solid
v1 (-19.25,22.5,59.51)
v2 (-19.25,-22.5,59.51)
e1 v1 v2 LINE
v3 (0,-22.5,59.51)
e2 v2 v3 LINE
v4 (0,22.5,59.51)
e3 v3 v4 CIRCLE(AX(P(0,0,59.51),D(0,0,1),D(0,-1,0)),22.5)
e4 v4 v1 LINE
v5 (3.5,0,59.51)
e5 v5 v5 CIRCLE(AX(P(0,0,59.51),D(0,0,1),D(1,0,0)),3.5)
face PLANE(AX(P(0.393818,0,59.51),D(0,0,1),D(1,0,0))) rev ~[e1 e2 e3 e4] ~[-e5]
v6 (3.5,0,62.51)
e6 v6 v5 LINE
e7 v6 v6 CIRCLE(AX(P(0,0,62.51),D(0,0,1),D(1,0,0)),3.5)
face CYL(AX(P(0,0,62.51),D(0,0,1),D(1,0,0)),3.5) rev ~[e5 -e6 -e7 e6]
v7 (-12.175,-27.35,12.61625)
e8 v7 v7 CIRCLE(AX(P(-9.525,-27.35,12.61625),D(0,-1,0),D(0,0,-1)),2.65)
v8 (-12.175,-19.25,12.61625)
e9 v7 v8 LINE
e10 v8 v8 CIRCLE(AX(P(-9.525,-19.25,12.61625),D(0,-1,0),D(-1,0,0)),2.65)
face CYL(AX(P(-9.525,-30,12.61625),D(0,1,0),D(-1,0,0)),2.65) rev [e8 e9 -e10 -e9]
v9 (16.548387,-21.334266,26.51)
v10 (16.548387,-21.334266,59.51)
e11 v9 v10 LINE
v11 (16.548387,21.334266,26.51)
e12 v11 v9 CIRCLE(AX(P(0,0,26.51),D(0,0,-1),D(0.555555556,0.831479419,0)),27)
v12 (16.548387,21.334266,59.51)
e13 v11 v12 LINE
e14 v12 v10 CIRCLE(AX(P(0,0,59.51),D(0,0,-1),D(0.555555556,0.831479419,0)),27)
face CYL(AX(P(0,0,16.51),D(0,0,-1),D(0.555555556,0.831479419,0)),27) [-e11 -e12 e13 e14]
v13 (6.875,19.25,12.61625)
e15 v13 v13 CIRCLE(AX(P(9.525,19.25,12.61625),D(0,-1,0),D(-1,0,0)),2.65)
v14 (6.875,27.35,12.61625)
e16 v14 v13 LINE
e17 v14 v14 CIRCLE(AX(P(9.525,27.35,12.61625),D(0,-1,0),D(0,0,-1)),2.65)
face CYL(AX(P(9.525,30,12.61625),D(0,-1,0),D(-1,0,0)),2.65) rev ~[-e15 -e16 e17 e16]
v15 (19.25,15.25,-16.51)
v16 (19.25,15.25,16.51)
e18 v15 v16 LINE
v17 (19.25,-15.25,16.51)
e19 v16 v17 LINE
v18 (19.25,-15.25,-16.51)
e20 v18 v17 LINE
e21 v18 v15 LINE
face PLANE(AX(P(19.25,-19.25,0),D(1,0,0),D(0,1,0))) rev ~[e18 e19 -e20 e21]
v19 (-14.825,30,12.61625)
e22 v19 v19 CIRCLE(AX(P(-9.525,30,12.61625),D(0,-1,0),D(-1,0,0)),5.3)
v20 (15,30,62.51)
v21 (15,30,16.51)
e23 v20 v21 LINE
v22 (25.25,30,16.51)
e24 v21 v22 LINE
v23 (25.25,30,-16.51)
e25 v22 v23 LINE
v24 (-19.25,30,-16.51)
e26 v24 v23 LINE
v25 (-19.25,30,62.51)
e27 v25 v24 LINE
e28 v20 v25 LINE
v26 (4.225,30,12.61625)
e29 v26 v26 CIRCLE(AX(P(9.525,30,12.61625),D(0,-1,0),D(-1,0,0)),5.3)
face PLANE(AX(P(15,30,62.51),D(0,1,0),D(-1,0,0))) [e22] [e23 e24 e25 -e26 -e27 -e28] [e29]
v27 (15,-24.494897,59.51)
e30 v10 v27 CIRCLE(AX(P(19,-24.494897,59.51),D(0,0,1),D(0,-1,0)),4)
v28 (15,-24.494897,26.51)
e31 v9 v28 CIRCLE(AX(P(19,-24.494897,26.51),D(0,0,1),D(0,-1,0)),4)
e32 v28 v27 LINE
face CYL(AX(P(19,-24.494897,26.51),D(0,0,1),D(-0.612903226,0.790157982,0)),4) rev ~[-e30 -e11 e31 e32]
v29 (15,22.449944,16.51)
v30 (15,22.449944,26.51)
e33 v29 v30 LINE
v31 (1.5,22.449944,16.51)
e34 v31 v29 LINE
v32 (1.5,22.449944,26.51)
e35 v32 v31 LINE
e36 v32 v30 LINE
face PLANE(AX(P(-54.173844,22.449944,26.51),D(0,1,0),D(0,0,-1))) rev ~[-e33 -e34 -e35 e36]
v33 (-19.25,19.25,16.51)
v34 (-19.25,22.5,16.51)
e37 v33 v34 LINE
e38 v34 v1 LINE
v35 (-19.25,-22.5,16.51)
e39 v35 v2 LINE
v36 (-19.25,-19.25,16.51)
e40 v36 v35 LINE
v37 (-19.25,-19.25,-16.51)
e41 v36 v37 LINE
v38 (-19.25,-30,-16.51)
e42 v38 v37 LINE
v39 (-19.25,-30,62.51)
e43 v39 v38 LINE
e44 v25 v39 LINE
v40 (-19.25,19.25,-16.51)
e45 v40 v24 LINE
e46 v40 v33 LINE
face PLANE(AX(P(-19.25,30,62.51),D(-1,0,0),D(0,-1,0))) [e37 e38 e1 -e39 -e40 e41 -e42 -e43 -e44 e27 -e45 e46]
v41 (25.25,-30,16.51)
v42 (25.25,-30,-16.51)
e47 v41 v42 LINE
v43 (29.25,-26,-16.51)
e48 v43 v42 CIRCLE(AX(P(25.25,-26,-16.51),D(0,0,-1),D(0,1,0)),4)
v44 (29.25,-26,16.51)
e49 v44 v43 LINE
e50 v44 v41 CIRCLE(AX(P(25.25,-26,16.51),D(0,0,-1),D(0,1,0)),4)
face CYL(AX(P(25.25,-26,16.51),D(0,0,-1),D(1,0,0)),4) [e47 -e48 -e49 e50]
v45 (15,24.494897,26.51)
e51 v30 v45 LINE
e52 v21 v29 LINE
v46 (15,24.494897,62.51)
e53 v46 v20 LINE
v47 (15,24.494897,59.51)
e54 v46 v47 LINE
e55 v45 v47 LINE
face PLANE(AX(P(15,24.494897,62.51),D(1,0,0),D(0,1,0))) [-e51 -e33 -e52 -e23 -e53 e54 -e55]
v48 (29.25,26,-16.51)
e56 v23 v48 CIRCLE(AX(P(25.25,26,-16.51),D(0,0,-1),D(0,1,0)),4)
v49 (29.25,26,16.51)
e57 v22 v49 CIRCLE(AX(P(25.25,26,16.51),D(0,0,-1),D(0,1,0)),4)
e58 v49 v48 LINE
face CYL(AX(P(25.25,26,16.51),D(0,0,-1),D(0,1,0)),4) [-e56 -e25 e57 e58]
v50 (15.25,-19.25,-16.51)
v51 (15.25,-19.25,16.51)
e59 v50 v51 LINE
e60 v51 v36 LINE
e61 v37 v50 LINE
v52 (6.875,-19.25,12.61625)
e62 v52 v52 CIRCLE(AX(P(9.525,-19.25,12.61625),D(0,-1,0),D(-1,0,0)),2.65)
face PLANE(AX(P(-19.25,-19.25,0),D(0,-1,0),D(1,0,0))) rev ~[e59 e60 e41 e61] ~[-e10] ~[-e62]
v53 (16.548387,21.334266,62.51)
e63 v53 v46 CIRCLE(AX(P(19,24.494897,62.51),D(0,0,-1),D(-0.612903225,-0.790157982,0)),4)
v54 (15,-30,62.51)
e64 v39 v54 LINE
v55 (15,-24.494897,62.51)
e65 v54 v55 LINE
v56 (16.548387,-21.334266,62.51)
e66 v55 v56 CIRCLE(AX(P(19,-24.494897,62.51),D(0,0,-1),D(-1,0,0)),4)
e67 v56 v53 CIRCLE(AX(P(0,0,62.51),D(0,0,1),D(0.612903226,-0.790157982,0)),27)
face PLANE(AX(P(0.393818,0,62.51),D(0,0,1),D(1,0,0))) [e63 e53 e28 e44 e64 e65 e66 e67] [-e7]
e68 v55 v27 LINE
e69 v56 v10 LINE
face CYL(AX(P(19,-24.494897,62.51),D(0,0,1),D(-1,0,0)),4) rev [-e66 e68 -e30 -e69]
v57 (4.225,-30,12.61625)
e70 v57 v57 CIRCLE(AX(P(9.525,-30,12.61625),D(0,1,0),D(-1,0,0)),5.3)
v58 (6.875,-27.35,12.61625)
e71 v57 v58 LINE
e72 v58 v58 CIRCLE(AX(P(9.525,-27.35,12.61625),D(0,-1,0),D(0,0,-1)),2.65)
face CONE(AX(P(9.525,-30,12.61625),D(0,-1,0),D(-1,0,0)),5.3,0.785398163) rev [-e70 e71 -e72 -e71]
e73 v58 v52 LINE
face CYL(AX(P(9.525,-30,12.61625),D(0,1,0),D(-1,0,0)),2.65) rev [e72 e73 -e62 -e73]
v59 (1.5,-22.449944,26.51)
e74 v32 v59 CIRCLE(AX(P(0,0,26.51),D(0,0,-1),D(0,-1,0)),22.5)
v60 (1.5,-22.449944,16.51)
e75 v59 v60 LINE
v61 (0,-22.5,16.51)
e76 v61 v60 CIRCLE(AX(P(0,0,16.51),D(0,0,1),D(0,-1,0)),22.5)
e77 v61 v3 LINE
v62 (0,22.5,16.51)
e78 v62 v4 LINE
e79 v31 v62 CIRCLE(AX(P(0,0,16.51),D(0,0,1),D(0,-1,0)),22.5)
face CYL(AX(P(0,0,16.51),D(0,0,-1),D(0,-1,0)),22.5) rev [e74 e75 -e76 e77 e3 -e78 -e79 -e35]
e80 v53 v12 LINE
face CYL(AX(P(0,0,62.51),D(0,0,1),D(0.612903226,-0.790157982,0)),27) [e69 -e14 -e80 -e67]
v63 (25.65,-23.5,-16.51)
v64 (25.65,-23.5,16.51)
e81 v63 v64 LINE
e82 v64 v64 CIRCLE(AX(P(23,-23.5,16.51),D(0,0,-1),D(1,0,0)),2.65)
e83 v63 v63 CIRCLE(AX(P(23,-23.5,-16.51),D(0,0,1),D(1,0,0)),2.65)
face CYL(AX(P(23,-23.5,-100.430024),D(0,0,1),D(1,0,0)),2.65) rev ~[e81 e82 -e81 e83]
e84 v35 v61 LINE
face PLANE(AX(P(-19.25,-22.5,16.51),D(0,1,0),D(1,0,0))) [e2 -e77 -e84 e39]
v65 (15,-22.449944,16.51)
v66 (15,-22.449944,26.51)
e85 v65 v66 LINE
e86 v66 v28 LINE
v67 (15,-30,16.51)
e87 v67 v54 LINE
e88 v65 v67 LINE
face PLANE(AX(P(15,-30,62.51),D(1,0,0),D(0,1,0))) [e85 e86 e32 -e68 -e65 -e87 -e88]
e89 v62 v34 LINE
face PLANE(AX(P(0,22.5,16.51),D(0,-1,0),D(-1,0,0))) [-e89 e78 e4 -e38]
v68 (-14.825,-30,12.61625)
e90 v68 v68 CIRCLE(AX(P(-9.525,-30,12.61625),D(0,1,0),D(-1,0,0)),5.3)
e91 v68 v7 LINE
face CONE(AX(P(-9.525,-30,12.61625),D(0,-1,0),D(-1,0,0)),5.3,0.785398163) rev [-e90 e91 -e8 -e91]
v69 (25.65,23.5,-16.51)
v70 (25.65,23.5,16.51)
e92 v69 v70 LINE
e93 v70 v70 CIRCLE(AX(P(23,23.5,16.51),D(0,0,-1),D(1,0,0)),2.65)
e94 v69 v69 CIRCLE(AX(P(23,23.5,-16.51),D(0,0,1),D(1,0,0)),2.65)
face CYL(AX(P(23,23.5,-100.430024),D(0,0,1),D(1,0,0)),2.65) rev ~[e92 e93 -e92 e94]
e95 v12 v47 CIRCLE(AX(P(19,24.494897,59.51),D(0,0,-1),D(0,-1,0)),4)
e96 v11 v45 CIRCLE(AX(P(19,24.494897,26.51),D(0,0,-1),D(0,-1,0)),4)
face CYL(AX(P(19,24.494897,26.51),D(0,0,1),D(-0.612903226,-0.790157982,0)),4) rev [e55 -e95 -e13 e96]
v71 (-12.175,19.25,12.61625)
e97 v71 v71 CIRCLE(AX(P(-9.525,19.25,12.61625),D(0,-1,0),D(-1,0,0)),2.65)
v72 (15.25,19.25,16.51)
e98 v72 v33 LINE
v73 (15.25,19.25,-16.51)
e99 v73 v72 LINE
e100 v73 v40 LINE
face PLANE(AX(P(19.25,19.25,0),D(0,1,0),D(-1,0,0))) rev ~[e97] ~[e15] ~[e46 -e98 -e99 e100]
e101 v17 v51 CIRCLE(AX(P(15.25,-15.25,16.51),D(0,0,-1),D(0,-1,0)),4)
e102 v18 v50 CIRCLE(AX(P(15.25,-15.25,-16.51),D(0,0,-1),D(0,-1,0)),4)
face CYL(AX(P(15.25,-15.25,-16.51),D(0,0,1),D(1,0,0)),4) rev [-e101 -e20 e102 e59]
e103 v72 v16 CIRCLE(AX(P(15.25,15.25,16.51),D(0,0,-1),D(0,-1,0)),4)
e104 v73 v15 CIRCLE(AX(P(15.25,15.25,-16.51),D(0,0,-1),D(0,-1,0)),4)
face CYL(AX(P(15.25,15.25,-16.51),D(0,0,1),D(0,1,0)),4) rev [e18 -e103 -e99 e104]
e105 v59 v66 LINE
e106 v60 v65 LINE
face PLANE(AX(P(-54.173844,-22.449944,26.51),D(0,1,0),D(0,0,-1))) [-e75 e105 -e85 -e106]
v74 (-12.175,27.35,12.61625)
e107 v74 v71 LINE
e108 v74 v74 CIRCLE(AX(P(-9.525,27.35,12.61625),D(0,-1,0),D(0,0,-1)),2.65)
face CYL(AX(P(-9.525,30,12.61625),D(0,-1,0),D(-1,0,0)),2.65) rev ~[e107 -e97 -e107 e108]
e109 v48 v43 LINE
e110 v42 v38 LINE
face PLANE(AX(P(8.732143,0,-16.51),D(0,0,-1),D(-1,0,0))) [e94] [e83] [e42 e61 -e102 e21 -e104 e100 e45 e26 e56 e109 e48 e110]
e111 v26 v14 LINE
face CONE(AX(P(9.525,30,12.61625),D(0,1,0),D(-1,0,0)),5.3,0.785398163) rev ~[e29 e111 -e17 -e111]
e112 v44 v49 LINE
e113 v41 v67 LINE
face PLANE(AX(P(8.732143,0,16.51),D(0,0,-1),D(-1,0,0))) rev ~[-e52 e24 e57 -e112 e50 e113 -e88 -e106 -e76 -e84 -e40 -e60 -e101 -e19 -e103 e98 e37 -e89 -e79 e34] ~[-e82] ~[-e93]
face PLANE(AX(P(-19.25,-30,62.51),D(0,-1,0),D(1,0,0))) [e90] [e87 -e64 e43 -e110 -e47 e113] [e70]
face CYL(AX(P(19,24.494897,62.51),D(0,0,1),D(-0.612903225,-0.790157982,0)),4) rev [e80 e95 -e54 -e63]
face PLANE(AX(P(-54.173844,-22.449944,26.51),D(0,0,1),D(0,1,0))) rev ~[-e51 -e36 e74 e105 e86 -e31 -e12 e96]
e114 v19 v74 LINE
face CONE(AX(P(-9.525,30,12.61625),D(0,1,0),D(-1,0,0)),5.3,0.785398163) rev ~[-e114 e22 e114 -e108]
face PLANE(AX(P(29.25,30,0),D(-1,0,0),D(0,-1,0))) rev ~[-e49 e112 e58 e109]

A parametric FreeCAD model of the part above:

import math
import FreeCAD as App
import Part
import Sketcher

V = App.Vector
Q = App.Units.Quantity


def edges_at(feature, points):
    """Names of the edges that pass closest to the given points."""
    edges = feature.Shape.Edges
    near = lambda p: min(range(len(edges)), key=lambda i: edges[i].distToShape(Part.Vertex(*p))[0])
    return sorted({f"Edge{near(p) + 1}" for p in points})

doc = App.newDocument("Part")
body = doc.addObject("PartDesign::Body", "Body")

# Sketch on XY plane
sketch1 = body.newObject("Sketcher::SketchObject", "Sketch")
sketch1.AttachmentSupport = (doc.getObject("XY_Plane"), [""])
sketch1.MapMode = "FlatFace"
sketch1.addGeometry([
    Part.LineSegment(V(-19, 30, 0), V(-19, 19, 0)),  # 0
    Part.LineSegment(V(-19, 19, 0), V(19, 19, 0)),  # 1
    Part.LineSegment(V(19, 19, 0), V(19, -19, 0)),  # 2
    Part.LineSegment(V(19, -19, 0), V(-19, -19, 0)),  # 3
    Part.LineSegment(V(-19, -19, 0), V(-19, -30, 0)),  # 4
    Part.LineSegment(V(-19, -30, 0), V(29, -30, 0)),  # 5
    Part.LineSegment(V(29, -30, 0), V(29, 30, 0)),  # 6
    Part.LineSegment(V(29, 30, 0), V(-19, 30, 0)),  # 7
], False)
sketch1.addConstraint([
    Sketcher.Constraint("Coincident", 0, 2, 1, 1),
    Sketcher.Constraint("Coincident", 1, 2, 2, 1),
    Sketcher.Constraint("Coincident", 2, 2, 3, 1),
    Sketcher.Constraint("Coincident", 3, 2, 4, 1),
    Sketcher.Constraint("Coincident", 4, 2, 5, 1),
    Sketcher.Constraint("Coincident", 5, 2, 6, 1),
    Sketcher.Constraint("Coincident", 6, 2, 7, 1),
    Sketcher.Constraint("Coincident", 7, 2, 0, 1),
    Sketcher.Constraint("Vertical", 0),
    Sketcher.Constraint("Horizontal", 1),
    Sketcher.Constraint("Vertical", 2),
    Sketcher.Constraint("Horizontal", 3),
    Sketcher.Constraint("Vertical", 4),
    Sketcher.Constraint("Horizontal", 5),
    Sketcher.Constraint("Vertical", 6),
    Sketcher.Constraint("Horizontal", 7),
    Sketcher.Constraint("Symmetric", 0, 2, 2, 2, -1, 1),
    Sketcher.Constraint("Symmetric", 4, 2, 7, 2, -1),
    Sketcher.Constraint("Equal", 3, 2),
    Sketcher.Constraint("DistanceY", 6, 1, 6, 2, Q("60 mm")),
    Sketcher.Constraint("DistanceX", 1, 1, 1, 2, Q("38.5 mm")),
    Sketcher.Constraint("DistanceX", 5, 1, 5, 2, Q("48.5 mm")),
])
pad1 = body.newObject("PartDesign::Pad", "Pad")
pad1.Profile = sketch1
pad1.Length = 33.02
pad1.Midplane = True

# Sketch on XY plane
sketch2 = body.newObject("Sketcher::SketchObject", "Sketch001")
sketch2.AttachmentSupport = (doc.getObject("XY_Plane"), [""])
sketch2.MapMode = "FlatFace"
sketch2.AttachmentOffset = App.Placement(V(0, 0, -16.51), App.Rotation())
sketch2.addGeometry([
    Part.Circle(V(23, -23.5, 0), V(0, 0, 1), 2.6),
    Part.Circle(V(23, 23.5, 0), V(0, 0, 1), 2.6),
], False)
sketch2.addConstraint([
    Sketcher.Constraint("Equal", 0, 1),
    Sketcher.Constraint("Symmetric", 0, 3, 1, 3, -1),
    Sketcher.Constraint("Diameter", 0, Q("5.3 mm")),
    Sketcher.Constraint("DistanceX", -1, 1, 0, 3, Q("23 mm")),
    Sketcher.Constraint("DistanceY", 0, 3, 1, 3, Q("47 mm")),
])
doc.recompute()
hole = body.newObject("PartDesign::Hole", "Hole")
hole.Profile = sketch2
hole.ThreadType = "None"
hole.Diameter = 5.3
hole.DepthType = "ThroughAll"
hole.Reversed = True
doc.recompute()

fillet = body.newObject("PartDesign::Fillet", "Fillet")
fillet.Base = (hole, edges_at(hole, [
    (19.25, 19.25, 0),
    (29.25, 30, 0),
    (29.25, -30, 0),
    (19.25, -19.25, 0),
]))
fillet.Radius = 4

# Sketch on XY plane
sketch3 = body.newObject("Sketcher::SketchObject", "Sketch002")
sketch3.AttachmentSupport = (doc.getObject("XY_Plane"), [""])
sketch3.MapMode = "FlatFace"
sketch3.AttachmentOffset = App.Placement(V(0, 0, 16.51), App.Rotation())
sketch3.addGeometry([
    Part.LineSegment(V(-19, 30, 0), V(-19, 22, 0)),  # 0
    Part.LineSegment(V(-19, 22, 0), V(0, 22, 0)),  # 1
    Part.ArcOfCircle(Part.Circle(V(0, 0, 0), V(0, 0, 1), 22), math.radians(-90), math.radians(90)),  # 2
    Part.LineSegment(V(0, -22, 0), V(-19, -22, 0)),  # 3
    Part.LineSegment(V(-19, -22, 0), V(-19, -30, 0)),  # 4
    Part.LineSegment(V(-19, -30, 0), V(15, -30, 0)),  # 5
    Part.LineSegment(V(15, -30, 0), V(15, -22, 0)),  # 6
    Part.ArcOfCircle(Part.Circle(V(0, 0, 0), V(0, 0, 1), 27), math.radians(-56), math.radians(56)),  # 7
    Part.LineSegment(V(15, 22, 0), V(15, 30, 0)),  # 8
    Part.LineSegment(V(15, 30, 0), V(-19, 30, 0)),  # 9
], False)
sketch3.addConstraint([
    Sketcher.Constraint("Coincident", 0, 2, 1, 1),
    Sketcher.Constraint("Tangent", 1, 2, 2, 2),
    Sketcher.Constraint("Tangent", 2, 1, 3, 1),
    Sketcher.Constraint("Coincident", 3, 2, 4, 1),
    Sketcher.Constraint("Coincident", 4, 2, 5, 1),
    Sketcher.Constraint("Coincident", 5, 2, 6, 1),
    Sketcher.Constraint("Coincident", 6, 2, 7, 1),
    Sketcher.Constraint("Coincident", 7, 2, 8, 1),
    Sketcher.Constraint("Coincident", 8, 2, 9, 1),
    Sketcher.Constraint("Coincident", 9, 2, 0, 1),
    Sketcher.Constraint("Vertical", 0),
    Sketcher.Constraint("Horizontal", 1),
    Sketcher.Constraint("Horizontal", 3),
    Sketcher.Constraint("Vertical", 4),
    Sketcher.Constraint("Horizontal", 5),
    Sketcher.Constraint("Vertical", 6),
    Sketcher.Constraint("Vertical", 8),
    Sketcher.Constraint("Horizontal", 9),
    Sketcher.Constraint("Coincident", 2, 3, -1, 1),
    Sketcher.Constraint("Coincident", 7, 3, -1, 1),
    Sketcher.Constraint("Symmetric", 5, 2, 8, 2, -1),
    Sketcher.Constraint("Vertical", 0, 2, 3, 2),
    Sketcher.Constraint("Radius", 7, Q("27 mm")),
    Sketcher.Constraint("Radius", 2, Q("22.5 mm")),
    Sketcher.Constraint("DistanceY", 0, 2, 0, 1, Q("7.5 mm")),
    Sketcher.Constraint("DistanceX", -1, 1, 5, 2, Q("15 mm")),
    Sketcher.Constraint("DistanceX", 1, 1, 1, 2, Q("19.25 mm")),
])
pad2 = body.newObject("PartDesign::Pad", "Pad001")
pad2.Profile = sketch3
pad2.Length = 43

# Sketch on YZ plane
sketch4 = body.newObject("Sketcher::SketchObject", "Sketch003")
sketch4.AttachmentSupport = (doc.getObject("YZ_Plane"), [""])
sketch4.MapMode = "FlatFace"
sketch4.AttachmentOffset = App.Placement(V(0, 0, 29.25), App.Rotation())
sketch4.addGeometry([
    Part.LineSegment(V(22, 27, 0), V(-22, 27, 0)),
    Part.LineSegment(V(-22, 27, 0), V(-22, 17, 0)),
    Part.LineSegment(V(-22, 17, 0), V(22, 17, 0)),
    Part.LineSegment(V(22, 17, 0), V(22, 27, 0)),
], False)
sketch4.addConstraint([
    Sketcher.Constraint("Coincident", 0, 2, 1, 1),
    Sketcher.Constraint("Coincident", 1, 2, 2, 1),
    Sketcher.Constraint("Coincident", 2, 2, 3, 1),
    Sketcher.Constraint("Coincident", 3, 2, 0, 1),
    Sketcher.Constraint("Horizontal", 0),
    Sketcher.Constraint("Vertical", 1),
    Sketcher.Constraint("Horizontal", 2),
    Sketcher.Constraint("Vertical", 3),
    Sketcher.Constraint("DistanceY", 1, 2, 1, 1, Q("10 mm")),
    Sketcher.Constraint("DistanceY", -1, 1, 0, 2, Q("26.51 mm")),
    Sketcher.Constraint("DistanceX", 0, 2, 0, 1, Q("44.899889 mm")),
    Sketcher.Constraint("DistanceX", 0, 2, -1, 1, Q("22.449944 mm")),
])
pocket1 = body.newObject("PartDesign::Pocket", "Pocket")
pocket1.Profile = sketch4
pocket1.Type = "ThroughAll"
pocket1.Midplane = True
doc.recompute()

fillet2 = body.newObject("PartDesign::Fillet", "Fillet001")
fillet2.Base = (pocket1, edges_at(pocket1, [(15, -22.45, 43.01), (15, 22.45, 43.01)]))
fillet2.Radius = 4

# Sketch on XY plane
sketch5 = body.newObject("Sketcher::SketchObject", "Sketch004")
sketch5.AttachmentSupport = (doc.getObject("XY_Plane"), [""])
sketch5.MapMode = "FlatFace"
sketch5.AttachmentOffset = App.Placement(V(0, 0, 62.51), App.Rotation())
sketch5.addGeometry([
    Part.LineSegment(V(-19.2, -30, 0), V(15, -30, 0)),  # 0
    Part.LineSegment(V(15, -30, 0), V(15, -24.5, 0)),  # 1
    Part.ArcOfCircle(Part.Circle(V(19, -24.5, 0), V(0, 0, 1), 4), math.radians(128), math.radians(180)),  # 2
    Part.ArcOfCircle(Part.Circle(V(0, 0, 0), V(0, 0, 1), 27), math.radians(-52), math.radians(52)),  # 3
    Part.ArcOfCircle(Part.Circle(V(19, 24.5, 0), V(0, 0, 1), 4), math.radians(180), math.radians(232)),  # 4
    Part.LineSegment(V(15, 24.5, 0), V(15, 30, 0)),  # 5
    Part.LineSegment(V(15, 30, 0), V(-19.2, 30, 0)),  # 6
    Part.LineSegment(V(-19.2, 30, 0), V(-19.2, -30, 0)),  # 7
    Part.Circle(V(0, 0, 0), V(0, 0, 1), 3.5),  # 8
], False)
sketch5.addConstraint([
    Sketcher.Constraint("Coincident", 0, 2, 1, 1),
    Sketcher.Constraint("Tangent", 1, 2, 2, 2),
    Sketcher.Constraint("Tangent", 2, 1, 3, 1),
    Sketcher.Constraint("Tangent", 3, 2, 4, 2),
    Sketcher.Constraint("Tangent", 4, 1, 5, 1),
    Sketcher.Constraint("Coincident", 5, 2, 6, 1),
    Sketcher.Constraint("Coincident", 6, 2, 7, 1),
    Sketcher.Constraint("Coincident", 7, 2, 0, 1),
    Sketcher.Constraint("Horizontal", 0),
    Sketcher.Constraint("Vertical", 1),
    Sketcher.Constraint("Vertical", 5),
    Sketcher.Constraint("Horizontal", 6),
    Sketcher.Constraint("Vertical", 7),
    Sketcher.Constraint("Coincident", 3, 3, -1, 1),
    Sketcher.Constraint("Coincident", 8, 3, -1, 1),
    Sketcher.Constraint("Equal", 2, 4),
    Sketcher.Constraint("Symmetric", 0, 2, 5, 2, -1),
    Sketcher.Constraint("Diameter", 8, Q("7 mm")),
    Sketcher.Constraint("Radius", 2, Q("4 mm")),
    Sketcher.Constraint("Radius", 3, Q("27 mm")),
    Sketcher.Constraint("DistanceY", 7, 2, 7, 1, Q("60 mm")),
    Sketcher.Constraint("DistanceX", -1, 1, 2, 3, Q("19 mm")),
    Sketcher.Constraint("DistanceX", 0, 1, 0, 2, Q("34.25 mm")),
])
pad3 = body.newObject("PartDesign::Pad", "Pad002")
pad3.Profile = sketch5
pad3.Length = 3
pad3.Reversed = True

# Sketch on XZ plane
sketch6 = body.newObject("Sketcher::SketchObject", "Sketch005")
sketch6.AttachmentSupport = (doc.getObject("XZ_Plane"), [""])
sketch6.MapMode = "FlatFace"
sketch6.AttachmentOffset = App.Placement(V(0, 0, -30), App.Rotation())
sketch6.addGeometry([
    Part.Circle(V(-9.5, 12.6, 0), V(0, 0, 1), 2.6),
    Part.Circle(V(9.5, 12.6, 0), V(0, 0, 1), 2.6),
], False)
sketch6.addConstraint([
    Sketcher.Constraint("Equal", 0, 1),
    Sketcher.Constraint("Symmetric", 0, 3, 1, 3, -2),
    Sketcher.Constraint("Diameter", 0, Q("5.3 mm")),
    Sketcher.Constraint("DistanceX", 0, 3, 1, 3, Q("19.05 mm")),
    Sketcher.Constraint("DistanceY", -1, 1, 0, 3, Q("12.61625 mm")),
])
doc.recompute()
hole2 = body.newObject("PartDesign::Hole", "Hole001")
hole2.Profile = sketch6
hole2.ThreadType = "None"
hole2.Diameter = 5.3
hole2.DepthType = "Dimension"
hole2.Depth = 10.75
hole2.DrillPoint = "Flat"
hole2.HoleCutType = "Countersink"
hole2.HoleCutDiameter = 10.6
hole2.HoleCutCountersinkAngle = 90
hole2.Reversed = True
doc.recompute()

mirrored = body.newObject("PartDesign::Mirrored", "Mirrored")
mirrored.Originals = [hole2]
mirrored.MirrorPlane = (doc.getObject("XZ_Plane"), [""])
body.Tip = mirrored

doc.recompute()
